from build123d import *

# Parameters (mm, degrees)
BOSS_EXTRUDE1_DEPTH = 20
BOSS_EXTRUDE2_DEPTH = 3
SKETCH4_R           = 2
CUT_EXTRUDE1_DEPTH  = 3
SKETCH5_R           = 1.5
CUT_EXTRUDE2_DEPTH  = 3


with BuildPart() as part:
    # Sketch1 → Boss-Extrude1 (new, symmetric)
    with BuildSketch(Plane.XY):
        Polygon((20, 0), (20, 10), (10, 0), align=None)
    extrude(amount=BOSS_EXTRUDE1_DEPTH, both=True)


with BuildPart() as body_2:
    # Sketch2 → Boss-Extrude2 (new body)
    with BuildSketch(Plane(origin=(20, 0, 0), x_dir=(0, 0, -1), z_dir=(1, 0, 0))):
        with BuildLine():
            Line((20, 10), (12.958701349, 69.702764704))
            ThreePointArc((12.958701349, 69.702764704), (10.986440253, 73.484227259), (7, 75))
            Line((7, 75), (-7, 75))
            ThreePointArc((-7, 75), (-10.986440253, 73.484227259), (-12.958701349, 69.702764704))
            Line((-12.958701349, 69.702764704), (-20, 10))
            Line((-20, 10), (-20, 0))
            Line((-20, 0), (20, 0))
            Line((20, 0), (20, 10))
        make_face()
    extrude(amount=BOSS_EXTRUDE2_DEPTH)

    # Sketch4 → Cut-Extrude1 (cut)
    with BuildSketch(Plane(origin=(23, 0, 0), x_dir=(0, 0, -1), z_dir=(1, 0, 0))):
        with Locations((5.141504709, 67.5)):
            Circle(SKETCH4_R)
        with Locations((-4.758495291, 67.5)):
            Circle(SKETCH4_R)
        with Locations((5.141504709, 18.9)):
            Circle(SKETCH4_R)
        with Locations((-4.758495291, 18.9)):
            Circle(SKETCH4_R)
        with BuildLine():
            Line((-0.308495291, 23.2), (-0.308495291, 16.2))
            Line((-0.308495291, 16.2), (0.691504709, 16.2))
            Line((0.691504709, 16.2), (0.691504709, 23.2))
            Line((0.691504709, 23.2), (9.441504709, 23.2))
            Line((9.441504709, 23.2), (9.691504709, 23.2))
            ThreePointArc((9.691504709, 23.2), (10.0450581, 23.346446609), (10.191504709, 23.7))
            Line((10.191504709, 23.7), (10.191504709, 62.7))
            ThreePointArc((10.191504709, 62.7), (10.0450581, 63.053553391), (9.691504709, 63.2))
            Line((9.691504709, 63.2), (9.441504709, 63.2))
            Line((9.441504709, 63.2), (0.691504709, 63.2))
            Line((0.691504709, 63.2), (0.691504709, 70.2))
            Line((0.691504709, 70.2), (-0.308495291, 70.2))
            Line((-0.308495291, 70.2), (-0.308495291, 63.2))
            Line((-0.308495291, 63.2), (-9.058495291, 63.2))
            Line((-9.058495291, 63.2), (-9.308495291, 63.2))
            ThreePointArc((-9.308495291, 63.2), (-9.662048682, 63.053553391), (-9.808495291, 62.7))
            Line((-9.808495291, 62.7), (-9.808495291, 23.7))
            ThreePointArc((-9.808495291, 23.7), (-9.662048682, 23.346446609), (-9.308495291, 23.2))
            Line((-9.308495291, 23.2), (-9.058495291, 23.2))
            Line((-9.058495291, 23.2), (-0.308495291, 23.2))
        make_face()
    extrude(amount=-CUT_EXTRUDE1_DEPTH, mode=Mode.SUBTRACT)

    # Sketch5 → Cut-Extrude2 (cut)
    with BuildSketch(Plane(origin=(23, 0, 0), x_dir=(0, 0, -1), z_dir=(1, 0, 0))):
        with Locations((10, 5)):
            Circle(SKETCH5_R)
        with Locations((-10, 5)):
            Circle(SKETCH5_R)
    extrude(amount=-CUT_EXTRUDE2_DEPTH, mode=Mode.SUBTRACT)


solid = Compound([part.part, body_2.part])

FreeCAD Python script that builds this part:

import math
import FreeCAD as App
import Part
import Sketcher


def add_polygon(sketch, points):
    """Adds a closed chain of lines whose ends are joined by coincident constraints."""
    first, n = sketch.GeometryCount, len(points)
    for a, b in zip(points, points[1:] + points[:1]):
        sketch.addGeometry(Part.LineSegment(App.Vector(*a, 0), App.Vector(*b, 0)), False)
    for i in range(n):
        sketch.addConstraint(Sketcher.Constraint("Coincident", first + i, 2, first + (i + 1) % n, 1))

doc = App.newDocument("Part")
body = doc.addObject("PartDesign::Body", "Body")

sketch1 = body.newObject("Sketcher::SketchObject", "Sketch")
sketch1.AttachmentSupport = (doc.getObject("XY_Plane"), [""])
sketch1.MapMode = "FlatFace"
add_polygon(sketch1, [(20, 0), (20, 10), (10, 0)])
sketch1.addConstraint(Sketcher.Constraint("Vertical", 0))
sketch1.addConstraint(Sketcher.Constraint("Horizontal", 2))
sketch1.addConstraint(Sketcher.Constraint("PointOnObject", 1, 2, -1))
sketch1.addConstraint(Sketcher.Constraint("Equal", 2, 0))
sketch1.addConstraint(Sketcher.Constraint("DistanceX", 2, 1, 2, 2, 10.0))
sketch1.addConstraint(Sketcher.Constraint("DistanceX", -1, 1, 0, 2, 20.0))
pad1 = body.newObject("PartDesign::Pad", "Pad")
pad1.Profile = sketch1
pad1.Length = 40
pad1.Midplane = True
body2 = doc.addObject("PartDesign::Body", "Body001")

sketch2 = body2.newObject("Sketcher::SketchObject", "Sketch001")
sketch2.AttachmentSupport = (doc.getObject("YZ_Plane001"), [""])
sketch2.MapMode = "FlatFace"
sketch2.AttachmentOffset = App.Placement(App.Vector(0, 0, 20), App.Rotation())
sketch2.addGeometry(Part.LineSegment(App.Vector(10, -20, 0), App.Vector(70, -13, 0)), False)
sketch2.addGeometry(Part.ArcOfCircle(Part.Circle(App.Vector(69, -7, 0), App.Vector(0, 0, 1), 6), math.radians(-83), math.radians(0)), False)
sketch2.addGeometry(Part.LineSegment(App.Vector(75, -7, 0), App.Vector(75, 7, 0)), False)
sketch2.addGeometry(Part.ArcOfCircle(Part.Circle(App.Vector(69, 7, 0), App.Vector(0, 0, 1), 6), math.radians(0), math.radians(83)), False)
sketch2.addGeometry(Part.LineSegment(App.Vector(70, 13, 0), App.Vector(10, 20, 0)), False)
sketch2.addGeometry(Part.LineSegment(App.Vector(10, 20, 0), App.Vector(0, 20, 0)), False)
sketch2.addGeometry(Part.LineSegment(App.Vector(0, 20, 0), App.Vector(0, -20, 0)), False)
sketch2.addGeometry(Part.LineSegment(App.Vector(0, -20, 0), App.Vector(10, -20, 0)), False)
sketch2.addConstraint(Sketcher.Constraint("Tangent", 0, 2, 1, 1))
sketch2.addConstraint(Sketcher.Constraint("Tangent", 1, 2, 2, 1))
sketch2.addConstraint(Sketcher.Constraint("Tangent", 2, 2, 3, 1))
sketch2.addConstraint(Sketcher.Constraint("Tangent", 3, 2, 4, 1))
sketch2.addConstraint(Sketcher.Constraint("Coincident", 4, 2, 5, 1))
sketch2.addConstraint(Sketcher.Constraint("Coincident", 5, 2, 6, 1))
sketch2.addConstraint(Sketcher.Constraint("Coincident", 6, 2, 7, 1))
sketch2.addConstraint(Sketcher.Constraint("Coincident", 7, 2, 0, 1))
sketch2.addConstraint(Sketcher.Constraint("Vertical", 2))
sketch2.addConstraint(Sketcher.Constraint("Horizontal", 5))
sketch2.addConstraint(Sketcher.Constraint("Vertical", 6))
sketch2.addConstraint(Sketcher.Constraint("Horizontal", 7))
sketch2.addConstraint(Sketcher.Constraint("Equal", 1, 3))
sketch2.addConstraint(Sketcher.Constraint("Symmetric", 5, 2, 6, 2, -1, 1))
sketch2.addConstraint(Sketcher.Constraint("Symmetric", 0, 2, 3, 2, -1))
sketch2.addConstraint(Sketcher.Constraint("Radius", 1, 6.0))
sketch2.addConstraint(Sketcher.Constraint("DistanceX", 5, 2, 5, 1, 10.0))
sketch2.addConstraint(Sketcher.Constraint("DistanceY", 2, 1, 2, 2, 14.0))
sketch2.addConstraint(Sketcher.Constraint("DistanceY", 6, 2, 6, 1, 40.0))
sketch2.addConstraint(Sketcher.Constraint("DistanceX", -1, 1, 1, 3, 69.0))
pad2 = body2.newObject("PartDesign::Pad", "Pad001")
pad2.Profile = sketch2
pad2.Length = 3

sketch3 = body2.newObject("Sketcher::SketchObject", "Sketch002")
sketch3.AttachmentSupport = (doc.getObject("YZ_Plane001"), [""])
sketch3.MapMode = "FlatFace"
sketch3.AttachmentOffset = App.Placement(App.Vector(0, 0, 23), App.Rotation())
sketch3.addGeometry(Part.Circle(App.Vector(67.5, -5.14, 0), App.Vector(0, 0, 1), 2), False)
sketch3.addGeometry(Part.Circle(App.Vector(67.5, 4.76, 0), App.Vector(0, 0, 1), 2), False)
sketch3.addGeometry(Part.Circle(App.Vector(18.9, -5.14, 0), App.Vector(0, 0, 1), 2), False)
sketch3.addGeometry(Part.Circle(App.Vector(18.9, 4.76, 0), App.Vector(0, 0, 1), 2), False)
sketch3.addGeometry(Part.LineSegment(App.Vector(23.2, 0.31, 0), App.Vector(16.2, 0.31, 0)), False)
sketch3.addGeometry(Part.LineSegment(App.Vector(16.2, 0.31, 0), App.Vector(16.2, -0.69, 0)), False)
sketch3.addGeometry(Part.LineSegment(App.Vector(16.2, -0.69, 0), App.Vector(23.2, -0.69, 0)), False)
sketch3.addGeometry(Part.LineSegment(App.Vector(23.2, -0.69, 0), App.Vector(23.2, -9.69, 0)), False)
sketch3.addGeometry(Part.ArcOfCircle(Part.Circle(App.Vector(23.7, -9.69, 0), App.Vector(0, 0, 1), 0.5), math.radians(180), math.radians(270)), False)
sketch3.addGeometry(Part.LineSegment(App.Vector(23.7, -10.19, 0), App.Vector(62.7, -10.19, 0)), False)
sketch3.addGeometry(Part.ArcOfCircle(Part.Circle(App.Vector(62.7, -9.69, 0), App.Vector(0, 0, 1), 0.5), math.radians(-90), math.radians(0)), False)
sketch3.addGeometry(Part.LineSegment(App.Vector(63.2, -9.69, 0), App.Vector(63.2, -0.69, 0)), False)
sketch3.addGeometry(Part.LineSegment(App.Vector(63.2, -0.69, 0), App.Vector(70.2, -0.69, 0)), False)
sketch3.addGeometry(Part.LineSegment(App.Vector(70.2, -0.69, 0), App.Vector(70.2, 0.31, 0)), False)
sketch3.addGeometry(Part.LineSegment(App.Vector(70.2, 0.31, 0), App.Vector(63.2, 0.31, 0)), False)
sketch3.addGeometry(Part.LineSegment(App.Vector(63.2, 0.31, 0), App.Vector(63.2, 9.31, 0)), False)
sketch3.addGeometry(Part.ArcOfCircle(Part.Circle(App.Vector(62.7, 9.31, 0), App.Vector(0, 0, 1), 0.5), math.radians(0), math.radians(90)), False)
sketch3.addGeometry(Part.LineSegment(App.Vector(62.7, 9.81, 0), App.Vector(23.7, 9.81, 0)), False)
sketch3.addGeometry(Part.ArcOfCircle(Part.Circle(App.Vector(23.7, 9.31, 0), App.Vector(0, 0, 1), 0.5), math.radians(90), math.radians(180)), False)
sketch3.addGeometry(Part.LineSegment(App.Vector(23.2, 9.31, 0), App.Vector(23.2, 0.31, 0)), False)
sketch3.addConstraint(Sketcher.Constraint("Coincident", 4, 2, 5, 1))
sketch3.addConstraint(Sketcher.Constraint("Coincident", 5, 2, 6, 1))
sketch3.addConstraint(Sketcher.Constraint("Coincident", 6, 2, 7, 1))
sketch3.addConstraint(Sketcher.Constraint("Tangent", 7, 2, 8, 1))
sketch3.addConstraint(Sketcher.Constraint("Tangent", 8, 2, 9, 1))
sketch3.addConstraint(Sketcher.Constraint("Tangent", 9, 2, 10, 1))
sketch3.addConstraint(Sketcher.Constraint("Tangent", 10, 2, 11, 1))
sketch3.addConstraint(Sketcher.Constraint("Coincident", 11, 2, 12, 1))
sketch3.addConstraint(Sketcher.Constraint("Coincident", 12, 2, 13, 1))
sketch3.addConstraint(Sketcher.Constraint("Coincident", 13, 2, 14, 1))
sketch3.addConstraint(Sketcher.Constraint("Coincident", 14, 2, 15, 1))
sketch3.addConstraint(Sketcher.Constraint("Tangent", 15, 2, 16, 1))
sketch3.addConstraint(Sketcher.Constraint("Tangent", 16, 2, 17, 1))
sketch3.addConstraint(Sketcher.Constraint("Tangent", 17, 2, 18, 1))
sketch3.addConstraint(Sketcher.Constraint("Tangent", 18, 2, 19, 1))
sketch3.addConstraint(Sketcher.Constraint("Coincident", 19, 2, 4, 1))
sketch3.addConstraint(Sketcher.Constraint("Horizontal", 4))
sketch3.addConstraint(Sketcher.Constraint("Vertical", 5))
sketch3.addConstraint(Sketcher.Constraint("Horizontal", 6))
sketch3.addConstraint(Sketcher.Constraint("Vertical", 7))
sketch3.addConstraint(Sketcher.Constraint("Horizontal", 9))
sketch3.addConstraint(Sketcher.Constraint("Vertical", 11))
sketch3.addConstraint(Sketcher.Constraint("Horizontal", 12))
sketch3.addConstraint(Sketcher.Constraint("Vertical", 13))
sketch3.addConstraint(Sketcher.Constraint("Horizontal", 14))
sketch3.addConstraint(Sketcher.Constraint("Vertical", 15))
sketch3.addConstraint(Sketcher.Constraint("Horizontal", 17))
sketch3.addConstraint(Sketcher.Constraint("Vertical", 19))
sketch3.addConstraint(Sketcher.Constraint("Equal", 0, 1))
sketch3.addConstraint(Sketcher.Constraint("Equal", 1, 2))
sketch3.addConstraint(Sketcher.Constraint("Equal", 2, 3))
sketch3.addConstraint(Sketcher.Constraint("Equal", 8, 10))
sketch3.addConstraint(Sketcher.Constraint("Equal", 10, 16))
sketch3.addConstraint(Sketcher.Constraint("Equal", 16, 18))
sketch3.addConstraint(Sketcher.Constraint("Horizontal", 0, 3, 2, 3))
sketch3.addConstraint(Sketcher.Constraint("Horizontal", 1, 3, 3, 3))
sketch3.addConstraint(Sketcher.Constraint("Horizontal", 6, 2, 11, 2))
sketch3.addConstraint(Sketcher.Constraint("Horizontal", 4, 2, 13, 2))
sketch3.addConstraint(Sketcher.Constraint("Vertical", 0, 3, 1, 3))
sketch3.addConstraint(Sketcher.Constraint("Vertical", 2, 3, 3, 3))
sketch3.addConstraint(Sketcher.Constraint("Vertical", 10, 3, 16, 3))
sketch3.addConstraint(Sketcher.Constraint("Vertical", 8, 3, 18, 3))
sketch3.addConstraint(Sketcher.Constraint("Equal", 6, 12))
sketch3.addConstraint(Sketcher.Constraint("Equal", 11, 15))
sketch3.addConstraint(Sketcher.Constraint("Diameter", 0, 4.0))
sketch3.addConstraint(Sketcher.Constraint("Radius", 8, 0.5))
sketch3.addConstraint(Sketcher.Constraint("DistanceX", 4, 2, 4, 1, 7.0))
sketch3.addConstraint(Sketcher.Constraint("DistanceX", 9, 1, 9, 2, 39.0))
sketch3.addConstraint(Sketcher.Constraint("DistanceY", 5, 2, 5, 1, 1.0))
sketch3.addConstraint(Sketcher.Constraint("DistanceY", 7, 2, 7, 1, 9.0))
sketch3.addConstraint(Sketcher.Constraint("DistanceX", -1, 1, 0, 3, 67.5))
sketch3.addConstraint(Sketcher.Constraint("DistanceX", -1, 1, 2, 3, 18.9))
sketch3.addConstraint(Sketcher.Constraint("DistanceX", -1, 1, 8, 3, 23.7))
sketch3.addConstraint(Sketcher.Constraint("DistanceY", 0, 3, 1, 3, 9.9))
sketch3.addConstraint(Sketcher.Constraint("DistanceY", 8, 3, 2, 3, 4.55))
sketch3.addConstraint(Sketcher.Constraint("DistanceY", 0, 3, -1, 1, 5.141505))
pocket1 = body2.newObject("PartDesign::Pocket", "Pocket")
pocket1.Profile = sketch3
pocket1.Length = 3

sketch4 = body2.newObject("Sketcher::SketchObject", "Sketch003")
sketch4.AttachmentSupport = (doc.getObject("YZ_Plane001"), [""])
sketch4.MapMode = "FlatFace"
sketch4.AttachmentOffset = App.Placement(App.Vector(0, 0, 23), App.Rotation())
sketch4.addGeometry(Part.Circle(App.Vector(5, -10, 0), App.Vector(0, 0, 1), 1.5), False)
sketch4.addGeometry(Part.Circle(App.Vector(5, 10, 0), App.Vector(0, 0, 1), 1.5), False)
sketch4.addConstraint(Sketcher.Constraint("Equal", 0, 1))
sketch4.addConstraint(Sketcher.Constraint("Symmetric", 0, 3, 1, 3, -1))
sketch4.addConstraint(Sketcher.Constraint("Diameter", 0, 3.0))
sketch4.addConstraint(Sketcher.Constraint("DistanceX", -1, 1, 0, 3, 5.0))
sketch4.addConstraint(Sketcher.Constraint("DistanceY", 0, 3, -1, 1, 10.0))
pocket2 = body2.newObject("PartDesign::Pocket", "Pocket001")
pocket2.Profile = sketch4
pocket2.Length = 3

doc.recompute()
